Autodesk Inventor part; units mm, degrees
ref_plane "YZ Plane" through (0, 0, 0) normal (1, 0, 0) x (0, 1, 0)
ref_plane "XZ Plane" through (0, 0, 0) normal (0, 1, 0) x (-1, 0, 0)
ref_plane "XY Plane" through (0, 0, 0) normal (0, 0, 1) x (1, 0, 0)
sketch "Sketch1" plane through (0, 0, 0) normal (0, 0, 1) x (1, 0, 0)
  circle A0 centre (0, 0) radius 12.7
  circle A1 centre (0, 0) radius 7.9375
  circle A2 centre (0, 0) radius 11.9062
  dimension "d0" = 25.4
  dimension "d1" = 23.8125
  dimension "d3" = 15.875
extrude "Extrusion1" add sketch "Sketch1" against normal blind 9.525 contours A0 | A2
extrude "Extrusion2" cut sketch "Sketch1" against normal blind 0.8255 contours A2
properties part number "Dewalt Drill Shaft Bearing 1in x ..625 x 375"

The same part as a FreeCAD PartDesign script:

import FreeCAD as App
import Part
import Sketcher

V = App.Vector
Q = App.Units.Quantity

doc = App.newDocument("Part")
body = doc.addObject("PartDesign::Body", "Body")

# Sketch on XY plane
sketch1 = doc.addObject("Sketcher::SketchObject", "Sketch")
body.addObject(sketch1)
sketch1.AttachmentSupport = (doc.XY_Plane, [""])
sketch1.MapMode = "FlatFace"
sketch1.addGeometry(Part.Circle(V(0, 0, 0), V(0, 0, 1), 13), False)
sketch1.addGeometry(Part.Circle(V(0, 0, 0), V(0, 0, 1), 8), False)
sketch1.addConstraint(Sketcher.Constraint("Coincident", 0, 3, -1, 1))
sketch1.addConstraint(Sketcher.Constraint("Coincident", 1, 3, -1, 1))
sketch1.addConstraint(Sketcher.Constraint("Diameter", 0, Q("1 in")))
sketch1.addConstraint(Sketcher.Constraint("Diameter", 1, Q("0.625 in")))
pad1 = doc.addObject("PartDesign::Pad", "Pad")
body.addObject(pad1)
pad1.Profile = sketch1
pad1.Length = Q("0.375 in")
pad1.Reversed = True

# Sketch on XY plane
sketch2 = doc.addObject("Sketcher::SketchObject", "Sketch001")
body.addObject(sketch2)
sketch2.AttachmentSupport = (doc.XY_Plane, [""])
sketch2.MapMode = "FlatFace"
sketch2.addGeometry(Part.Circle(V(0, 0, 0), V(0, 0, 1), 12), False)
sketch2.addGeometry(Part.Circle(V(0, 0, 0), V(0, 0, 1), 8), False)
sketch2.addConstraint(Sketcher.Constraint("Coincident", 0, 3, -1, 1))
sketch2.addConstraint(Sketcher.Constraint("Coincident", 1, 3, -1, 1))
sketch2.addConstraint(Sketcher.Constraint("Diameter", 0, Q("0.9375 in")))
sketch2.addConstraint(Sketcher.Constraint("Diameter", 1, Q("0.625 in")))
pocket1 = doc.addObject("PartDesign::Pocket", "Pocket")
body.addObject(pocket1)
pocket1.Profile = sketch2
pocket1.Length = Q("0.0325 in")

doc.recompute()
